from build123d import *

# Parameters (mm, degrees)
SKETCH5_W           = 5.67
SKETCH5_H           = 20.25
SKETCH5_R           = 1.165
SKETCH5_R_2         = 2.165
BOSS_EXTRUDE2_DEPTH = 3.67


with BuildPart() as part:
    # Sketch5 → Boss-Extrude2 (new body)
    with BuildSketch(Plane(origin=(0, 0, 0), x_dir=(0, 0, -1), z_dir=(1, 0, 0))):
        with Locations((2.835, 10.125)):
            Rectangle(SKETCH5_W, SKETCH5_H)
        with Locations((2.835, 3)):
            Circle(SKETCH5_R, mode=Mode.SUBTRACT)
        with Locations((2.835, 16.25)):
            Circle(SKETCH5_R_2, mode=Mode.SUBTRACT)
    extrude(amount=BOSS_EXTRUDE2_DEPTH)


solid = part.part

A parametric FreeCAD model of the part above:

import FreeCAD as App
import Part
import Sketcher
from FreeCAD import Vector


def add_polygon(sketch, points):
    """Adds a closed chain of lines whose ends are joined by coincident constraints."""
    first, n = sketch.GeometryCount, len(points)
    for a, b in zip(points, points[1:] + points[:1]):
        sketch.addGeometry(Part.LineSegment(App.Vector(*a, 0), App.Vector(*b, 0)), False)
    for i in range(n):
        sketch.addConstraint(Sketcher.Constraint("Coincident", first + i, 2, first + (i + 1) % n, 1))

doc = App.newDocument("Part")
body = doc.addObject("PartDesign::Body", "Body")

sketch1 = doc.addObject("Sketcher::SketchObject", "Sketch")
body.addObject(sketch1)
sketch1.AttachmentSupport = (doc.YZ_Plane, [""])
sketch1.MapMode = "FlatFace"
add_polygon(sketch1, [(20.2, 0), (0, 0), (0, -5.7), (20.2, -5.7)])
sketch1.addGeometry(Part.Circle(Vector(3, -2.8, 0), Vector(0, 0, 1), 1.2), False)
sketch1.addGeometry(Part.Circle(Vector(16.2, -2.8, 0), Vector(0, 0, 1), 2.2), False)
sketch1.addConstraint([
    Sketcher.Constraint("Horizontal", 0),
    Sketcher.Constraint("Vertical", 1),
    Sketcher.Constraint("Horizontal", 2),
    Sketcher.Constraint("Vertical", 3),
    Sketcher.Constraint("Coincident", 0, 2, -1, 1),
    Sketcher.Constraint("Horizontal", 4, 3, 5, 3),
    Sketcher.Constraint("Diameter", 4, 2.33),
    Sketcher.Constraint("Diameter", 5, 4.33),
    Sketcher.Constraint("DistanceX", -1, 1, 4, 3, 3.0),
    Sketcher.Constraint("DistanceX", 5, 3, 2, 2, 4.0),
    Sketcher.Constraint("DistanceX", 0, 2, 0, 1, 20.25),
    Sketcher.Constraint("DistanceY", 1, 2, 1, 1, 5.67),
    Sketcher.Constraint("DistanceY", 4, 3, -1, 1, 2.835),
])
pad1 = doc.addObject("PartDesign::Pad", "Pad")
body.addObject(pad1)
pad1.Profile = sketch1
pad1.Length = 3.67

doc.recompute()
